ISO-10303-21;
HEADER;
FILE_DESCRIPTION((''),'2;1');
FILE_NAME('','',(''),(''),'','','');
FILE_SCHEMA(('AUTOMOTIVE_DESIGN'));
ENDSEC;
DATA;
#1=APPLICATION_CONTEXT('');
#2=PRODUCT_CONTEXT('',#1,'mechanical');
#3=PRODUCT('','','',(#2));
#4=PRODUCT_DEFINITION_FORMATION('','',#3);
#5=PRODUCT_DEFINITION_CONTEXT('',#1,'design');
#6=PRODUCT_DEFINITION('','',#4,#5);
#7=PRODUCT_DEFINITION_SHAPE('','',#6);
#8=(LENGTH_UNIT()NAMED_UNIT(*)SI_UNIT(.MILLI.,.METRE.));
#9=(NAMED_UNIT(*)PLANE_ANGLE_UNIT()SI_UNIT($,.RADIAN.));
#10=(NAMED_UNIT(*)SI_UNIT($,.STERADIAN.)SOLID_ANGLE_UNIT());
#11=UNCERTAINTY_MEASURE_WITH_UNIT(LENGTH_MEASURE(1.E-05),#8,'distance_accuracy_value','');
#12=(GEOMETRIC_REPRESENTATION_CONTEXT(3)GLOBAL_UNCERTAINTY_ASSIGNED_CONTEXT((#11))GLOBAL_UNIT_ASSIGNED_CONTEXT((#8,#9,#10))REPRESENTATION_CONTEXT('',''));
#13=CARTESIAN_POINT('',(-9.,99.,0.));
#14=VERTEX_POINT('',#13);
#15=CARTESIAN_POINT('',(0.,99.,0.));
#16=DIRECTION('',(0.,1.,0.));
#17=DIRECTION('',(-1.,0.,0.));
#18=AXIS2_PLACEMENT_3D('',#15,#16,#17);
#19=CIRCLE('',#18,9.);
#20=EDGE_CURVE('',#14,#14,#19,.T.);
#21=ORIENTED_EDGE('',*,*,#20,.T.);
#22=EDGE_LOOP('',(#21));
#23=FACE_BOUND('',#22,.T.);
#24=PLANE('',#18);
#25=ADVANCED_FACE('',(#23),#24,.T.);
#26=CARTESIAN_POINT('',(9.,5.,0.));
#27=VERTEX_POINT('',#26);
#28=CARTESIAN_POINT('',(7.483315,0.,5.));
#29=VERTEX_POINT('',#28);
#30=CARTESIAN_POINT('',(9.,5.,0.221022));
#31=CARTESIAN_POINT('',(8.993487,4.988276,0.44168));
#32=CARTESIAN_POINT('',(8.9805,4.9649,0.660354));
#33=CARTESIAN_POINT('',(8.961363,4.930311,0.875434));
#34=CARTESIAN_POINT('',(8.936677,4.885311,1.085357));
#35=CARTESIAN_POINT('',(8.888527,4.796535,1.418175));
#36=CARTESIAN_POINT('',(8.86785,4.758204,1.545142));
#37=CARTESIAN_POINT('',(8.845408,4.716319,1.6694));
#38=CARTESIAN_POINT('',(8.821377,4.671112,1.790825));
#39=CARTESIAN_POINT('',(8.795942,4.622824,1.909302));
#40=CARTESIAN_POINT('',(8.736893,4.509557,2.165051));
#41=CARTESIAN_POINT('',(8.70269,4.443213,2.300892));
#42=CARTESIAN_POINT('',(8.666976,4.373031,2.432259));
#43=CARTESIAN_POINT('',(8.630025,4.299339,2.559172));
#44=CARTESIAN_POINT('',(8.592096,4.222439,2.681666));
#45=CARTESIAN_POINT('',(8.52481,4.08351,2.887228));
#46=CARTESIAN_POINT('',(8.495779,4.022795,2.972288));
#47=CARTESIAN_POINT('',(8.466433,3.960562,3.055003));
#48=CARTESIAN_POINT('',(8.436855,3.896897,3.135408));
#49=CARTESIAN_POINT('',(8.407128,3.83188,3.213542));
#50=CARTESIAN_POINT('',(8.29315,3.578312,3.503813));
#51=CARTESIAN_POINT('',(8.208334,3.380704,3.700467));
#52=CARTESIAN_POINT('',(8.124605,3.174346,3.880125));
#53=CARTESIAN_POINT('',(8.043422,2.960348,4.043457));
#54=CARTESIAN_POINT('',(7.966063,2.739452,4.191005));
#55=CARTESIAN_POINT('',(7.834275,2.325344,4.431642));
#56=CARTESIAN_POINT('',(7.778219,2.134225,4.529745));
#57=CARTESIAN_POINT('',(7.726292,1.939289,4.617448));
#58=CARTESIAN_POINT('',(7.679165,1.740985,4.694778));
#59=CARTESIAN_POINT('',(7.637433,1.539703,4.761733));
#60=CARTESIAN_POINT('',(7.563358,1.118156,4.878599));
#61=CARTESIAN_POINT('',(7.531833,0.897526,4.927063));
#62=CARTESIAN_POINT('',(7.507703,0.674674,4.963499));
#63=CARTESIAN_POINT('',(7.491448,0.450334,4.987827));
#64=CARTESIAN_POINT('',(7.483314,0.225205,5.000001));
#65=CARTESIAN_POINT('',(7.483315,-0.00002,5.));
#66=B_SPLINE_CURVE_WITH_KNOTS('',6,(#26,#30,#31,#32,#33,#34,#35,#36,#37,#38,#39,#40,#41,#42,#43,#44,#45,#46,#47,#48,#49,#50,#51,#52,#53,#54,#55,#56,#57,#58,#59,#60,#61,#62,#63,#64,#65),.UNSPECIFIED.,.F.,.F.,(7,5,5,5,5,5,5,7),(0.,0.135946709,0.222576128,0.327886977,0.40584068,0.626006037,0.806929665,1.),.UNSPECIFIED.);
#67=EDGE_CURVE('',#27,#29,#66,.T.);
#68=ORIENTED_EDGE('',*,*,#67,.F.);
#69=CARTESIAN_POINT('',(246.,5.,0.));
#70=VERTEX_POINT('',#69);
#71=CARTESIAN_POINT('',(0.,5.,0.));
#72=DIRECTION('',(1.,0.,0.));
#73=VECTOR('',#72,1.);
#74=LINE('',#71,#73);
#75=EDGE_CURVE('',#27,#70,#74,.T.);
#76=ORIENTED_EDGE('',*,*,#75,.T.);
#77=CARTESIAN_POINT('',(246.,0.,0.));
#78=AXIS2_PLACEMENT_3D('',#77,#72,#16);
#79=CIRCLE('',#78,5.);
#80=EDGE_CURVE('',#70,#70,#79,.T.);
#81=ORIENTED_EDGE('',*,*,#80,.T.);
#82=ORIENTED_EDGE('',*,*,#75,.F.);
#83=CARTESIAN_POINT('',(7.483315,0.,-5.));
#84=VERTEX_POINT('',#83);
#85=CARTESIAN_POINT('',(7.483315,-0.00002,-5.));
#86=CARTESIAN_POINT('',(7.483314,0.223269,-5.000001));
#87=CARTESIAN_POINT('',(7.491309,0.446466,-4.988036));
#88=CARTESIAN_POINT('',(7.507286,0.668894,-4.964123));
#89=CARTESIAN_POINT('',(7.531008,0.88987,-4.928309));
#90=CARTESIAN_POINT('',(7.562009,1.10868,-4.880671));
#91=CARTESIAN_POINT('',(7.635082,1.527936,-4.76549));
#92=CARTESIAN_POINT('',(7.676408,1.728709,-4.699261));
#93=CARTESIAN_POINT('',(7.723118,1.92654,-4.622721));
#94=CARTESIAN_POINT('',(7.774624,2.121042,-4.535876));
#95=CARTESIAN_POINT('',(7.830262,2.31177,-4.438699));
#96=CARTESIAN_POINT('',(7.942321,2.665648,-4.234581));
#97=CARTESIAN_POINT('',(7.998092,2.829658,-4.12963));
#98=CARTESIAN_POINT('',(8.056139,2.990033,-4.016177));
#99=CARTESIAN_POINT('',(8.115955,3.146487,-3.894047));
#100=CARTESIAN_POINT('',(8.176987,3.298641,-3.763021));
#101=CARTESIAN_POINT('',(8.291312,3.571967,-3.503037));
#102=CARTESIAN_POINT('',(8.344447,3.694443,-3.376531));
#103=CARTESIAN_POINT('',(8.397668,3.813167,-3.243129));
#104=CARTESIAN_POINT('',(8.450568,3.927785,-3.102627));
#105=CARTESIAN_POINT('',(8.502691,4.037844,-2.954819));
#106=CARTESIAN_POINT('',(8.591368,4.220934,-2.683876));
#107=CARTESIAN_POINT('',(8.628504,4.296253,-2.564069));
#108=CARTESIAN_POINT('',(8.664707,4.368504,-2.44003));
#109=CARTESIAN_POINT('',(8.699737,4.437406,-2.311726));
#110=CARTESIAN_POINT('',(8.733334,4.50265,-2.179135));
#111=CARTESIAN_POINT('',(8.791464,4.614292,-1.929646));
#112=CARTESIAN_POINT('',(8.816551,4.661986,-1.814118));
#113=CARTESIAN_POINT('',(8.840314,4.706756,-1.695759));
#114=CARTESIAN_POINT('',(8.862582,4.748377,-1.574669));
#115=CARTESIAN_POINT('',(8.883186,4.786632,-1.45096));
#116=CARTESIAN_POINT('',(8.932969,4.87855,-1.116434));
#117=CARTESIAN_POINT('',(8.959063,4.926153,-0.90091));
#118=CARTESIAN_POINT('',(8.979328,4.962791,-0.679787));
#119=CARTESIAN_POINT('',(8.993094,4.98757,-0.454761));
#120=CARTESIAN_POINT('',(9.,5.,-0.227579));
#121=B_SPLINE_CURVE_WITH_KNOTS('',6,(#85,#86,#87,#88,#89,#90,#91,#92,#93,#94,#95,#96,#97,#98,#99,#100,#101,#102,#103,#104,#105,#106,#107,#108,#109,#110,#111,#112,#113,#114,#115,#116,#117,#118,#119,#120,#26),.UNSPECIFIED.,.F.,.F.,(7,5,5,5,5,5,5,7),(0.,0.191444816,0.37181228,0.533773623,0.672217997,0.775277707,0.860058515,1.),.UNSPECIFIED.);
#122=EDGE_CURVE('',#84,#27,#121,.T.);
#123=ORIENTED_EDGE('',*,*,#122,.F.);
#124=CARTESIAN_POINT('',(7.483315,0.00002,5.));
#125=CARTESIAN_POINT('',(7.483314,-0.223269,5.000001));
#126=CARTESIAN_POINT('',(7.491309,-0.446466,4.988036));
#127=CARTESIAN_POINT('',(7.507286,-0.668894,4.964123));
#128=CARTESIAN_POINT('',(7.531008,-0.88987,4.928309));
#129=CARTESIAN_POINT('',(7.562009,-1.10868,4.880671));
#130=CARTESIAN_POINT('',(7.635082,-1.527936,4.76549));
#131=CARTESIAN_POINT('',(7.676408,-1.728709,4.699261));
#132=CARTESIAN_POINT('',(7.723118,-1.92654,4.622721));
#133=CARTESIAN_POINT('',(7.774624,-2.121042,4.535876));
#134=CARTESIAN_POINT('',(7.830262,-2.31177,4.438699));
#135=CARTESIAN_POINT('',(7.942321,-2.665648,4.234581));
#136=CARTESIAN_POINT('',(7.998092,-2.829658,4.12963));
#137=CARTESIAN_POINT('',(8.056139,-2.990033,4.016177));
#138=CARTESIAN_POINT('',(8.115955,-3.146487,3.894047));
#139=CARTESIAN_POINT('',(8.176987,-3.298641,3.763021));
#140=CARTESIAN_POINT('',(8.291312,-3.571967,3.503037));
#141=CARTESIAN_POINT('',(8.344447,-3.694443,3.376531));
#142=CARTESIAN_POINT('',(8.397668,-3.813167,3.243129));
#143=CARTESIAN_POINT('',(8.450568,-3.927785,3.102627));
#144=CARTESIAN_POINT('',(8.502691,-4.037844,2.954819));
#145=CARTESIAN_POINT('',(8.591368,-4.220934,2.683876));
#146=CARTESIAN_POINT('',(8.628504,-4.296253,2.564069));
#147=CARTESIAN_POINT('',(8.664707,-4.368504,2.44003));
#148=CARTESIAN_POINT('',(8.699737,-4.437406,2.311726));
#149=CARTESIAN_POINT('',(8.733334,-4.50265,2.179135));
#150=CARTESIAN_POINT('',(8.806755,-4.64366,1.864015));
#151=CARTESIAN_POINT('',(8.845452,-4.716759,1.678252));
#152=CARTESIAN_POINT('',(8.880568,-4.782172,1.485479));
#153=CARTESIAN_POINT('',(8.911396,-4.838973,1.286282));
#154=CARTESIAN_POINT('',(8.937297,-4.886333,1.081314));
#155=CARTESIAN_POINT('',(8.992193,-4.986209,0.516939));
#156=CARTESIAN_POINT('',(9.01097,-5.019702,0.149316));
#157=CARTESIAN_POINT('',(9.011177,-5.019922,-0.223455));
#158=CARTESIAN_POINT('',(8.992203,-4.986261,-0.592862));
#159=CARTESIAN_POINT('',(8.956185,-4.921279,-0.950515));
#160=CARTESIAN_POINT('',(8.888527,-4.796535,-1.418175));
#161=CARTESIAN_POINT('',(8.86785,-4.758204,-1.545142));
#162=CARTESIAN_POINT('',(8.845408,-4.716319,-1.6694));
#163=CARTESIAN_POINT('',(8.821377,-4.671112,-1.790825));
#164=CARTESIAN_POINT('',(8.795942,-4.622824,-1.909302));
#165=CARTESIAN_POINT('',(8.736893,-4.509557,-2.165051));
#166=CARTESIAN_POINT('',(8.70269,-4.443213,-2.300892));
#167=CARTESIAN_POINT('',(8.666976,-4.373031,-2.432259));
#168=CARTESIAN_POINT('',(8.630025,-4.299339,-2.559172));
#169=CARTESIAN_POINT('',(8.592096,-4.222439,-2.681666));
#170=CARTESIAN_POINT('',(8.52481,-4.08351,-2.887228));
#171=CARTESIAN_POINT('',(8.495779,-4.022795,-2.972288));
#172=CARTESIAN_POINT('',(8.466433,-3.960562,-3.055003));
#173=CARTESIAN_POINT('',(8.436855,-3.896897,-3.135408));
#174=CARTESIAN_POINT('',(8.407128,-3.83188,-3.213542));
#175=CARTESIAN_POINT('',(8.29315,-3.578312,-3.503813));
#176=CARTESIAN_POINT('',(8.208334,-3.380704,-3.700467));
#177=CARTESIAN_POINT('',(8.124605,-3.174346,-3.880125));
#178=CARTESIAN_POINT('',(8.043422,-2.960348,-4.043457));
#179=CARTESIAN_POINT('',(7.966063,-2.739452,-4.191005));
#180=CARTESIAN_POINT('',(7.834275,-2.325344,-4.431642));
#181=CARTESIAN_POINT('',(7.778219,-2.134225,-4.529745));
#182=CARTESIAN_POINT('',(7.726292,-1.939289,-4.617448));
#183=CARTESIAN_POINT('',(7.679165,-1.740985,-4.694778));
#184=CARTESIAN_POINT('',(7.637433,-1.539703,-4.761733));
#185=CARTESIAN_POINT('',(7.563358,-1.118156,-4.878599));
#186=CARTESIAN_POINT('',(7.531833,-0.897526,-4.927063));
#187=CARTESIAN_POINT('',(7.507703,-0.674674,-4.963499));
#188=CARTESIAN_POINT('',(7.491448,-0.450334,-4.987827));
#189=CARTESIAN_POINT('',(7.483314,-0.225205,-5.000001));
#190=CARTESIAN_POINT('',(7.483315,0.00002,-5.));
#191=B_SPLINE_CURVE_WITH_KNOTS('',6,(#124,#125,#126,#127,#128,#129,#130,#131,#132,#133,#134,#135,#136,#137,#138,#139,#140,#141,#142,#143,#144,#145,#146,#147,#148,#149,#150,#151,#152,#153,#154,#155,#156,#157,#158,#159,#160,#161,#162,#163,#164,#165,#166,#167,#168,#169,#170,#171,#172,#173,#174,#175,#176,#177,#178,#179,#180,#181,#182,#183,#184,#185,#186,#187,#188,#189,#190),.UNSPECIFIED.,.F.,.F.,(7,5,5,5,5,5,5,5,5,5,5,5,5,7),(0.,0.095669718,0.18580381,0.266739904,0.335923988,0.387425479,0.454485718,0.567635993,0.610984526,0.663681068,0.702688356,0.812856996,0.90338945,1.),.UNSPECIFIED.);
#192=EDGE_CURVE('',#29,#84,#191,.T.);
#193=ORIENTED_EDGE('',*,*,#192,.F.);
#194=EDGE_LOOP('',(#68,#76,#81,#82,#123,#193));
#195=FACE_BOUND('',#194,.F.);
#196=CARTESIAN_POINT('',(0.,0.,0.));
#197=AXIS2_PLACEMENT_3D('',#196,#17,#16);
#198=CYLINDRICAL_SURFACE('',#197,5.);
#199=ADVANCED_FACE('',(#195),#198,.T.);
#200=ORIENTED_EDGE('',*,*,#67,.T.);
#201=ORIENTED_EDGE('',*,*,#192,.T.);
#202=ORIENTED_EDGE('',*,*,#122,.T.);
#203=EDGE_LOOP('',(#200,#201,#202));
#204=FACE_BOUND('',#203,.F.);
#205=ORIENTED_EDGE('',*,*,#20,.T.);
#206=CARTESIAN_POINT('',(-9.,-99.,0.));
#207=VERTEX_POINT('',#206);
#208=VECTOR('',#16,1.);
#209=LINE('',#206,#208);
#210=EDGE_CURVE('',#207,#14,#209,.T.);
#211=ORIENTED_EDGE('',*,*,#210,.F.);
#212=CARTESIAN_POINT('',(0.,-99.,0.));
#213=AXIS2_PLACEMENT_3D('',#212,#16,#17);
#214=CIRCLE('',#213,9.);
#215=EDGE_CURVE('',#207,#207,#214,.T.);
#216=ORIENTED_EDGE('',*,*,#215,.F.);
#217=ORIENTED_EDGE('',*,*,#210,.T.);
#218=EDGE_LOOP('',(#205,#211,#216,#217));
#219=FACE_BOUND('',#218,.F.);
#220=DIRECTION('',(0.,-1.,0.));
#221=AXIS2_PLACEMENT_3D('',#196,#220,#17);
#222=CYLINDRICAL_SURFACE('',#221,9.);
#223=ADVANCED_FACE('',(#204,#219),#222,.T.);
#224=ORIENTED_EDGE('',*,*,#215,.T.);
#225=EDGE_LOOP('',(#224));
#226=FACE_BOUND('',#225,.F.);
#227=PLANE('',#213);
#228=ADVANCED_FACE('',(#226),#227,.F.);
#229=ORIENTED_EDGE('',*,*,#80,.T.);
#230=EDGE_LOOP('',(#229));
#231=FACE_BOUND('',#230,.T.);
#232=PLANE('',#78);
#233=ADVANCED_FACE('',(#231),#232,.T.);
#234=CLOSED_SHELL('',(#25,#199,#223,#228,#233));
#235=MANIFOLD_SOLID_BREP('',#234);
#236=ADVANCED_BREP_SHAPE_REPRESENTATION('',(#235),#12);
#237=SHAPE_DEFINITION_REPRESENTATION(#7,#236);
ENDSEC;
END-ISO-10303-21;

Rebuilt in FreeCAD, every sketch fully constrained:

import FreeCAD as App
import Part
import Sketcher
from FreeCAD import Vector

doc = App.newDocument("Part")
params = doc.addObject("Spreadsheet::Sheet", "Params")
for row, (alias, value) in enumerate([
    ("sketch1_diameter", "18 mm"),
    ("pad1_length", "99 mm"),
    ("pad1_length2", "99 mm"),
    ("sketch2_diameter", "10 mm"),
    ("pad2_length", "246 mm"),
], start=1):
    params.set(f"A{row}", alias)
    params.set(f"B{row}", "=" + value)
    params.setAlias(f"B{row}", alias)

body = doc.addObject("PartDesign::Body", "Body")

sketch1 = doc.addObject("Sketcher::SketchObject", "Sketch")
body.addObject(sketch1)
sketch1.AttachmentSupport = (doc.XZ_Plane, [""])
sketch1.MapMode = "FlatFace"
sketch1.addGeometry(Part.Circle(Vector(0, 0, 0), Vector(0, 0, 1), 9), False)
sketch1.addConstraint(Sketcher.Constraint("Coincident", 0, 3, -1, 1))
sketch1.addConstraint(Sketcher.Constraint("Diameter", 0, 18.0))
sketch1.setExpression("Constraints[1]", "Params.sketch1_diameter")
pad1 = doc.addObject("PartDesign::Pad", "Pad")
body.addObject(pad1)
pad1.Profile = sketch1
pad1.Type = "TwoLengths"
pad1.setExpression("Length", "Params.pad1_length")
pad1.setExpression("Length2", "Params.pad1_length2")
pad1.Reversed = True

sketch2 = doc.addObject("Sketcher::SketchObject", "Sketch001")
body.addObject(sketch2)
sketch2.AttachmentSupport = (doc.YZ_Plane, [""])
sketch2.MapMode = "FlatFace"
sketch2.addGeometry(Part.Circle(Vector(0, 0, 0), Vector(0, 0, 1), 5), False)
sketch2.addConstraint(Sketcher.Constraint("Coincident", 0, 3, -1, 1))
sketch2.addConstraint(Sketcher.Constraint("Diameter", 0, 10.0))
sketch2.setExpression("Constraints[1]", "Params.sketch2_diameter")
pad2 = doc.addObject("PartDesign::Pad", "Pad001")
body.addObject(pad2)
pad2.Profile = sketch2
pad2.setExpression("Length", "Params.pad2_length")

doc.recompute()
